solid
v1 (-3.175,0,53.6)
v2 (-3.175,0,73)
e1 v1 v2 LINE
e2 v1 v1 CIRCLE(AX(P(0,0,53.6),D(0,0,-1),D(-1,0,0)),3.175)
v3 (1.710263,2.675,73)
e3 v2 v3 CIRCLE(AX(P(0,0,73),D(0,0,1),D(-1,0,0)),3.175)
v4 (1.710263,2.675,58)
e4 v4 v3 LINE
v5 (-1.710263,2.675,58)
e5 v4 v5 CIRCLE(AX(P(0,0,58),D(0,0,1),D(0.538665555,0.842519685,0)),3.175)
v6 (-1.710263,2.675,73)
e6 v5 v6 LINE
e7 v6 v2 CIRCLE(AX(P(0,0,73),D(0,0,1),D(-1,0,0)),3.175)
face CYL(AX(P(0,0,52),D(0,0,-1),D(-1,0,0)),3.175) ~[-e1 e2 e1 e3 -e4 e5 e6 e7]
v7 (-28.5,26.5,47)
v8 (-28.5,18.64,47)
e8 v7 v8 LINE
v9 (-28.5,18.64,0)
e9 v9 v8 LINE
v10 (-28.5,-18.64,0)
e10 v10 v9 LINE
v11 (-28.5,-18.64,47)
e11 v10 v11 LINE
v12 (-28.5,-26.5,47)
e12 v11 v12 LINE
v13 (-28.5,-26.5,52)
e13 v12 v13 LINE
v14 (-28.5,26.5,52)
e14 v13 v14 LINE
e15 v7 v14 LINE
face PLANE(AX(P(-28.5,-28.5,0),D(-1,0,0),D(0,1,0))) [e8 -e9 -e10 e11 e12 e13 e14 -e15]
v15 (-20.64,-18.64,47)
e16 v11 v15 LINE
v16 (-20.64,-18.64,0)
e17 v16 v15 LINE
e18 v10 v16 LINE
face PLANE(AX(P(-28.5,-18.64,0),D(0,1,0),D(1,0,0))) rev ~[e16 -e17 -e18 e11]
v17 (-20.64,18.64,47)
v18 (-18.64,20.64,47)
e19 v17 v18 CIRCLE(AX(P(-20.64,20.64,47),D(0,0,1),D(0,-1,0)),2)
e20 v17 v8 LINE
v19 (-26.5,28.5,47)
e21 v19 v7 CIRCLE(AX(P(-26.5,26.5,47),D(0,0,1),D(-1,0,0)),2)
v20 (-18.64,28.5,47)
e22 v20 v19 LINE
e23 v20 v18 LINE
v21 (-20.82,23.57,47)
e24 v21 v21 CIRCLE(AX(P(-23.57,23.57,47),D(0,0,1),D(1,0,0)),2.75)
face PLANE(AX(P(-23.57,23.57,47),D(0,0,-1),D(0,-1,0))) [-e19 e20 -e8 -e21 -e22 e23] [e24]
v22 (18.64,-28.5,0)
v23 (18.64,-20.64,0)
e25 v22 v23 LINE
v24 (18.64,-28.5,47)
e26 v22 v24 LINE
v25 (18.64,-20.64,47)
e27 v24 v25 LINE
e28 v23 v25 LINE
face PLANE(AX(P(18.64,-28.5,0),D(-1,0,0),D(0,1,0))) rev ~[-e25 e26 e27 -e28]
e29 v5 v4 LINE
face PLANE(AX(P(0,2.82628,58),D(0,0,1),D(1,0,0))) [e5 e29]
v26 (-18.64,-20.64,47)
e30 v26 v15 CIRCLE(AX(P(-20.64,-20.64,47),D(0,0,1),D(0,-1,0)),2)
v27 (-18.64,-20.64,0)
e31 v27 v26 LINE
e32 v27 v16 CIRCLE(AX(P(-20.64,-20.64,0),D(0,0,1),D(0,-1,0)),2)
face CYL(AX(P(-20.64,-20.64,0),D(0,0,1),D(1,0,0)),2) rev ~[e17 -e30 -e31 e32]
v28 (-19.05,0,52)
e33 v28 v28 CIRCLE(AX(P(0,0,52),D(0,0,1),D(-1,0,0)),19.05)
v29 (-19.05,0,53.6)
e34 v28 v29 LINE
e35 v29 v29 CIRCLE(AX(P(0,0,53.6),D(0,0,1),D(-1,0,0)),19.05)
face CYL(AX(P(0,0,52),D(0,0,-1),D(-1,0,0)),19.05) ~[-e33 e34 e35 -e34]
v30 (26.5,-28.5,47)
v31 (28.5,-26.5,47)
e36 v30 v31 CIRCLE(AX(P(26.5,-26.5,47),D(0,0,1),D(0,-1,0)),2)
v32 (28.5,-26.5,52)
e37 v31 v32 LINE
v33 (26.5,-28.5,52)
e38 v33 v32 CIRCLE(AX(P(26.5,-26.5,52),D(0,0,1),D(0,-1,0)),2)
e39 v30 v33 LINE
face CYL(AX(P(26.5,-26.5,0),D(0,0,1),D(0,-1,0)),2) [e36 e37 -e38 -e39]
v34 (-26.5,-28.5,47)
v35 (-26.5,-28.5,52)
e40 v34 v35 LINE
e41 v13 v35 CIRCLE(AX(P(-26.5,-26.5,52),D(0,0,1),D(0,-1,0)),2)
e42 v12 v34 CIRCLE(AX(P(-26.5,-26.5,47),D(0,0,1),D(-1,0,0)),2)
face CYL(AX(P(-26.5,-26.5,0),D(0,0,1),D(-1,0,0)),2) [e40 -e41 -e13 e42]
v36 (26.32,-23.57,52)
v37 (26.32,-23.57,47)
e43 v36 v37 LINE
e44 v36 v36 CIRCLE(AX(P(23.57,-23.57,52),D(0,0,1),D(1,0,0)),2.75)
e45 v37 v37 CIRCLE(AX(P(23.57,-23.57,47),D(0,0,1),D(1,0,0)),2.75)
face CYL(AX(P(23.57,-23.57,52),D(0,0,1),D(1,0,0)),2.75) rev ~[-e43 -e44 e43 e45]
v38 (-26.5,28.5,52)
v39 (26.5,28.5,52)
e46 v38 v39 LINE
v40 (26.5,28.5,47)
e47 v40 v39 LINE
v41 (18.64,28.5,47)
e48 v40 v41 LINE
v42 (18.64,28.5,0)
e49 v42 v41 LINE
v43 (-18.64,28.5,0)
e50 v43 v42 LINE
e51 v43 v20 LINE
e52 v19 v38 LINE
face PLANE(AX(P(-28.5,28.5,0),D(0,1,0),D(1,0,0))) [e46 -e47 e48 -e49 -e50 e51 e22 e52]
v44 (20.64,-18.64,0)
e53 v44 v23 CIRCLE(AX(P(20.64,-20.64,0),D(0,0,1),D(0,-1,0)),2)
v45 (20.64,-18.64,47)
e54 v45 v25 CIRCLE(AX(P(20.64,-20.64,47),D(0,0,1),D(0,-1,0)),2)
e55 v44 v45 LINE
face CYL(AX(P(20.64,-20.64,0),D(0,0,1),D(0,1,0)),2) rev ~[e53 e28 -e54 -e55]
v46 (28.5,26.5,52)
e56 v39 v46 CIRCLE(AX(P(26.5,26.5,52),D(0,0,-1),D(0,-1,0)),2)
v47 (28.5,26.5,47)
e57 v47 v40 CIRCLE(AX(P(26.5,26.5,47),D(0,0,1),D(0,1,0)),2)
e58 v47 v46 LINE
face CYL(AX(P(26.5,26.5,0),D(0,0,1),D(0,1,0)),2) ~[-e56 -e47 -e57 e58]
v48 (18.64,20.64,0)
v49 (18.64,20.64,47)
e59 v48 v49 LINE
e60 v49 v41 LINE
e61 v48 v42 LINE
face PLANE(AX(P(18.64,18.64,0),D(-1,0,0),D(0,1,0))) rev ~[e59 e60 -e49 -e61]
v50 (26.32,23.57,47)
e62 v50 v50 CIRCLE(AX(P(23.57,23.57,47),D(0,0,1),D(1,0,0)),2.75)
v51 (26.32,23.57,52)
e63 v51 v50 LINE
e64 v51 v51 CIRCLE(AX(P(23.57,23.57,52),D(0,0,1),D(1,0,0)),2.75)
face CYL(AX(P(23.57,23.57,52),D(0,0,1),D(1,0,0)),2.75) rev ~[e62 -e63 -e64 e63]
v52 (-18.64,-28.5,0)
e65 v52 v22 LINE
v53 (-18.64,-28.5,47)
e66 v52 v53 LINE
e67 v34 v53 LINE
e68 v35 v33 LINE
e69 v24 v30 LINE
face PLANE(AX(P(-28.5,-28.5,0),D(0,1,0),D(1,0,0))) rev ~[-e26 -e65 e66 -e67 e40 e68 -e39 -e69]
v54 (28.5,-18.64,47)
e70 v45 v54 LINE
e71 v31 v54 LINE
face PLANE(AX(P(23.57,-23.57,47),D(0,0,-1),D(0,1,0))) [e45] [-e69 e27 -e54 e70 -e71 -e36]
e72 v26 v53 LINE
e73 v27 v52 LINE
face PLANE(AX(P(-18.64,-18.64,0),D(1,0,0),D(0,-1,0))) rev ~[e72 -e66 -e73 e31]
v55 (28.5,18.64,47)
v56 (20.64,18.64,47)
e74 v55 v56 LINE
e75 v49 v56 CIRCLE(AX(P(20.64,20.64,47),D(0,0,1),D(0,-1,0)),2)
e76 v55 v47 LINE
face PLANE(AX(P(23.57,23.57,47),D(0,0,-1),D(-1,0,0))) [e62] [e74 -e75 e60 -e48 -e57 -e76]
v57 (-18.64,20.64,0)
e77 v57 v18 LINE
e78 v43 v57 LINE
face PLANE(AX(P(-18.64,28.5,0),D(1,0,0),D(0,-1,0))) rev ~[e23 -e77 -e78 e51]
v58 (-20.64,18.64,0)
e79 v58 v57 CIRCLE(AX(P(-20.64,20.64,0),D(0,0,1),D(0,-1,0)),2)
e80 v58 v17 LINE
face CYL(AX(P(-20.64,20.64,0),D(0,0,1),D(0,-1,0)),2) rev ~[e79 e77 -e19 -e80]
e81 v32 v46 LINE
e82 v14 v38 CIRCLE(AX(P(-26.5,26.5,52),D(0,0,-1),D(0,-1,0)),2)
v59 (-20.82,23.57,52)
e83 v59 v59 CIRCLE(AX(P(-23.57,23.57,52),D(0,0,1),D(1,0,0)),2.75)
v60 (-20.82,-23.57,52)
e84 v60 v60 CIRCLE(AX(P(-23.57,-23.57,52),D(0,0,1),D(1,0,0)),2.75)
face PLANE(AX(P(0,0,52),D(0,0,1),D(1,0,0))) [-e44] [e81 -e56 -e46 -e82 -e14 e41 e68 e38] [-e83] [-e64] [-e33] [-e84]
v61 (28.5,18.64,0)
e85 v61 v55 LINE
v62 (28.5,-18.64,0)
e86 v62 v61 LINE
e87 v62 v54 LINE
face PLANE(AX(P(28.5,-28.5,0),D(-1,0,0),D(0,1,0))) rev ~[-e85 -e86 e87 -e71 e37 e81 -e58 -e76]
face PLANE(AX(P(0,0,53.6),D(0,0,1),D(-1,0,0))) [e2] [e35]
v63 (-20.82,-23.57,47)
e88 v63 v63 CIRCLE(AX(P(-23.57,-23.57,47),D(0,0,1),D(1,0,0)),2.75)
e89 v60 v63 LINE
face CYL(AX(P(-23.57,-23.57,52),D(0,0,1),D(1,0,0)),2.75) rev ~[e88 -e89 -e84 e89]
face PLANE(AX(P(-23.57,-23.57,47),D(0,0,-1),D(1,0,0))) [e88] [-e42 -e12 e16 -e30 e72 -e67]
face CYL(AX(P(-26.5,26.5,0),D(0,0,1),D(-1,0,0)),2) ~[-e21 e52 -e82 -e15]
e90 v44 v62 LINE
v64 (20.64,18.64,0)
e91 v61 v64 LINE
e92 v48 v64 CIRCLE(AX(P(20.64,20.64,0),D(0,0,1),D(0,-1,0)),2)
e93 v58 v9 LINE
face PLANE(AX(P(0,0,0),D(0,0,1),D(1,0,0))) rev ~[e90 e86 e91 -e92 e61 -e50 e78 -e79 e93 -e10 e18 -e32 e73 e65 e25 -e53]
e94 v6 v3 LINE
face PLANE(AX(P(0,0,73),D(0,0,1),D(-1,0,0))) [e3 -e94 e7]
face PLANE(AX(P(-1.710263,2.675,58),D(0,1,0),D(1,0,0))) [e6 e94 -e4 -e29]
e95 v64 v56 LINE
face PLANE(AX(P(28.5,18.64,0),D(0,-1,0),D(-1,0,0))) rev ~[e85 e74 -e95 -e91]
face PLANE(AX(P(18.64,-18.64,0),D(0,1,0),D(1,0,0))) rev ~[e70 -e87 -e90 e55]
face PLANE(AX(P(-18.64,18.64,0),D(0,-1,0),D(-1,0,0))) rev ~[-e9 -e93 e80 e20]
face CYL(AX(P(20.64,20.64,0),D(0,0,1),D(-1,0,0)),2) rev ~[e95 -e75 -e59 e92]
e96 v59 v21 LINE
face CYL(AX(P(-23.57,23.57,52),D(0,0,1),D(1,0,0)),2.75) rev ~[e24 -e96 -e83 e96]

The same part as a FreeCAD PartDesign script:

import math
import FreeCAD as App
import Part
import Sketcher
from FreeCAD import Vector


def edges_at(feature, points):
    """Names of the edges that pass closest to the given points."""
    edges = feature.Shape.Edges
    near = lambda p: min(range(len(edges)), key=lambda i: edges[i].distToShape(Part.Vertex(*p))[0])
    return sorted({f"Edge{near(p) + 1}" for p in points})

doc = App.newDocument("Part")
body = doc.addObject("PartDesign::Body", "Body")

# Sketch on XY plane
sketch1 = body.newObject("Sketcher::SketchObject", "Sketch")
sketch1.AttachmentSupport = (doc.getObject("XY_Plane"), [""])
sketch1.MapMode = "FlatFace"
sketch1.addGeometry(Part.LineSegment(Vector(-28, 28, 0), Vector(-28, -28, 0)), False)
sketch1.addGeometry(Part.LineSegment(Vector(-28, -28, 0), Vector(28, -28, 0)), False)
sketch1.addGeometry(Part.LineSegment(Vector(28, -28, 0), Vector(28, 28, 0)), False)
sketch1.addGeometry(Part.LineSegment(Vector(28, 28, 0), Vector(-28, 28, 0)), False)
sketch1.addConstraint(Sketcher.Constraint("Coincident", 0, 2, 1, 1))
sketch1.addConstraint(Sketcher.Constraint("Coincident", 1, 2, 2, 1))
sketch1.addConstraint(Sketcher.Constraint("Coincident", 2, 2, 3, 1))
sketch1.addConstraint(Sketcher.Constraint("Coincident", 3, 2, 0, 1))
sketch1.addConstraint(Sketcher.Constraint("Vertical", 0))
sketch1.addConstraint(Sketcher.Constraint("Horizontal", 1))
sketch1.addConstraint(Sketcher.Constraint("Vertical", 2))
sketch1.addConstraint(Sketcher.Constraint("Horizontal", 3))
sketch1.addConstraint(Sketcher.Constraint("Symmetric", 0, 2, 2, 2, -1, 1))
sketch1.addConstraint(Sketcher.Constraint("Equal", 3, 0))
sketch1.addConstraint(Sketcher.Constraint("DistanceX", 1, 1, 1, 2, 57.0))
pad1 = body.newObject("PartDesign::Pad", "Pad")
pad1.Profile = sketch1
pad1.Length = 52

# Sketch on XY plane
sketch2 = body.newObject("Sketcher::SketchObject", "Sketch001")
sketch2.AttachmentSupport = (doc.getObject("XY_Plane"), [""])
sketch2.MapMode = "FlatFace"
sketch2.AttachmentOffset = App.Placement(Vector(0, 0, 52), App.Rotation())
sketch2.addGeometry(Part.Circle(Vector(0, 0, 0), Vector(0, 0, 1), 3.2), False)
sketch2.addConstraint(Sketcher.Constraint("Coincident", 0, 3, -1, 1))
sketch2.addConstraint(Sketcher.Constraint("Diameter", 0, 6.35))
pad2 = body.newObject("PartDesign::Pad", "Pad001")
pad2.Profile = sketch2
pad2.Length = 21
doc.recompute()

fillet = body.newObject("PartDesign::Fillet", "Fillet")
fillet.Base = (pad2, edges_at(pad2, [
    (28.5, -28.5, 26),
    (-28.5, -28.5, 26),
    (-28.5, 28.5, 26),
    (28.5, 28.5, 26),
]))
fillet.Radius = 2

# Sketch on XY plane
sketch3 = body.newObject("Sketcher::SketchObject", "Sketch002")
sketch3.AttachmentSupport = (doc.getObject("XY_Plane"), [""])
sketch3.MapMode = "FlatFace"
sketch3.AttachmentOffset = App.Placement(Vector(0, 0, 52), App.Rotation())
sketch3.addGeometry(Part.Circle(Vector(0, 0, 0), Vector(0, 0, 1), 19), False)
sketch3.addConstraint(Sketcher.Constraint("Coincident", 0, 3, -1, 1))
sketch3.addConstraint(Sketcher.Constraint("Diameter", 0, 38.1))
pad3 = body.newObject("PartDesign::Pad", "Pad002")
pad3.Profile = sketch3
pad3.Length = 1.6

# Sketch on XY plane
sketch4 = body.newObject("Sketcher::SketchObject", "Sketch003")
sketch4.AttachmentSupport = (doc.getObject("XY_Plane"), [""])
sketch4.MapMode = "FlatFace"
sketch4.AttachmentOffset = App.Placement(Vector(0, 0, 52), App.Rotation())
sketch4.addGeometry(Part.Circle(Vector(23.6, 23.6, 0), Vector(0, 0, 1), 2.8), False)
sketch4.addGeometry(Part.Circle(Vector(23.6, -23.6, 0), Vector(0, 0, 1), 2.8), False)
sketch4.addGeometry(Part.Circle(Vector(-23.6, -23.6, 0), Vector(0, 0, 1), 2.8), False)
sketch4.addGeometry(Part.Circle(Vector(-23.6, 23.6, 0), Vector(0, 0, 1), 2.8), False)
sketch4.addConstraint(Sketcher.Constraint("Equal", 0, 1))
sketch4.addConstraint(Sketcher.Constraint("Equal", 1, 2))
sketch4.addConstraint(Sketcher.Constraint("Equal", 2, 3))
sketch4.addConstraint(Sketcher.Constraint("Symmetric", 0, 3, 2, 3, -1, 1))
sketch4.addConstraint(Sketcher.Constraint("Symmetric", 1, 3, 3, 3, -1, 1))
sketch4.addConstraint(Sketcher.Constraint("Symmetric", 1, 3, 2, 3, -2))
sketch4.addConstraint(Sketcher.Constraint("Diameter", 0, 5.5))
sketch4.addConstraint(Sketcher.Constraint("DistanceX", -1, 1, 0, 3, 23.57))
sketch4.addConstraint(Sketcher.Constraint("DistanceY", -1, 1, 0, 3, 23.57))
pocket1 = body.newObject("PartDesign::Pocket", "Pocket")
pocket1.Profile = sketch4
pocket1.Type = "ThroughAll"

# Sketch on XY plane
sketch5 = body.newObject("Sketcher::SketchObject", "Sketch004")
sketch5.AttachmentSupport = (doc.getObject("XY_Plane"), [""])
sketch5.MapMode = "FlatFace"
sketch5.AttachmentOffset = App.Placement(Vector(0, 0, 58), App.Rotation())
sketch5.addGeometry(Part.LineSegment(Vector(-1.7, 2.7, 0), Vector(1.7, 2.7, 0)), False)
sketch5.addGeometry(Part.ArcOfCircle(Part.Circle(Vector(0, 0, 0), Vector(0, 0, 1), 3.2), math.radians(57), math.radians(123)), False)
sketch5.addConstraint(Sketcher.Constraint("Coincident", 0, 1, 1, 2))
sketch5.addConstraint(Sketcher.Constraint("Coincident", 1, 1, 0, 2))
sketch5.addConstraint(Sketcher.Constraint("Horizontal", 0))
sketch5.addConstraint(Sketcher.Constraint("Coincident", 1, 3, -1, 1))
sketch5.addConstraint(Sketcher.Constraint("Radius", 1, 3.175))
sketch5.addConstraint(Sketcher.Constraint("DistanceY", -1, 1, 0, 1, 2.675))
pocket2 = body.newObject("PartDesign::Pocket", "Pocket001")
pocket2.Profile = sketch5
pocket2.Length = 15
pocket2.Reversed = True

# Sketch on XY plane
sketch6 = body.newObject("Sketcher::SketchObject", "Sketch005")
sketch6.AttachmentSupport = (doc.getObject("XY_Plane"), [""])
sketch6.MapMode = "FlatFace"
sketch6.addGeometry(Part.LineSegment(Vector(28, 28, 0), Vector(28, 19, 0)), False)
sketch6.addGeometry(Part.LineSegment(Vector(28, 19, 0), Vector(19, 19, 0)), False)
sketch6.addGeometry(Part.LineSegment(Vector(19, 19, 0), Vector(19, 28, 0)), False)
sketch6.addGeometry(Part.LineSegment(Vector(19, 28, 0), Vector(28, 28, 0)), False)
sketch6.addConstraint(Sketcher.Constraint("Coincident", 0, 2, 1, 1))
sketch6.addConstraint(Sketcher.Constraint("Coincident", 1, 2, 2, 1))
sketch6.addConstraint(Sketcher.Constraint("Coincident", 2, 2, 3, 1))
sketch6.addConstraint(Sketcher.Constraint("Coincident", 3, 2, 0, 1))
sketch6.addConstraint(Sketcher.Constraint("Vertical", 0))
sketch6.addConstraint(Sketcher.Constraint("Horizontal", 1))
sketch6.addConstraint(Sketcher.Constraint("Vertical", 2))
sketch6.addConstraint(Sketcher.Constraint("Horizontal", 3))
sketch6.addConstraint(Sketcher.Constraint("Equal", 3, 0))
sketch6.addConstraint(Sketcher.Constraint("DistanceX", 1, 2, 1, 1, 9.86))
sketch6.addConstraint(Sketcher.Constraint("DistanceX", -1, 1, 0, 2, 28.5))
sketch6.addConstraint(Sketcher.Constraint("DistanceY", -1, 1, 2, 2, 28.5))
pocket3 = body.newObject("PartDesign::Pocket", "Pocket002")
pocket3.Profile = sketch6
pocket3.Length = 47
pocket3.Reversed = True
doc.recompute()

fillet2 = body.newObject("PartDesign::Fillet", "Fillet001")
fillet2.Base = (pocket3, edges_at(pocket3, [(18.64, 18.64, 23.5)]))
fillet2.Radius = 2
doc.recompute()

polarpattern = body.newObject("PartDesign::PolarPattern", "PolarPattern")
polarpattern.Originals = [pocket3]
polarpattern.Axis = (doc.getObject("Z_Axis"), [""])
polarpattern.Angle = 360
polarpattern.Occurrences = 4
body.Tip = polarpattern
doc.recompute()

fillet3 = body.newObject("PartDesign::Fillet", "Fillet002")
fillet3.Base = (polarpattern, edges_at(polarpattern, [(-18.64, 18.64, 23.5), (-18.64, -18.64, 23.5), (18.64, -18.64, 23.5)]))
fillet3.Radius = 2

doc.recompute()
